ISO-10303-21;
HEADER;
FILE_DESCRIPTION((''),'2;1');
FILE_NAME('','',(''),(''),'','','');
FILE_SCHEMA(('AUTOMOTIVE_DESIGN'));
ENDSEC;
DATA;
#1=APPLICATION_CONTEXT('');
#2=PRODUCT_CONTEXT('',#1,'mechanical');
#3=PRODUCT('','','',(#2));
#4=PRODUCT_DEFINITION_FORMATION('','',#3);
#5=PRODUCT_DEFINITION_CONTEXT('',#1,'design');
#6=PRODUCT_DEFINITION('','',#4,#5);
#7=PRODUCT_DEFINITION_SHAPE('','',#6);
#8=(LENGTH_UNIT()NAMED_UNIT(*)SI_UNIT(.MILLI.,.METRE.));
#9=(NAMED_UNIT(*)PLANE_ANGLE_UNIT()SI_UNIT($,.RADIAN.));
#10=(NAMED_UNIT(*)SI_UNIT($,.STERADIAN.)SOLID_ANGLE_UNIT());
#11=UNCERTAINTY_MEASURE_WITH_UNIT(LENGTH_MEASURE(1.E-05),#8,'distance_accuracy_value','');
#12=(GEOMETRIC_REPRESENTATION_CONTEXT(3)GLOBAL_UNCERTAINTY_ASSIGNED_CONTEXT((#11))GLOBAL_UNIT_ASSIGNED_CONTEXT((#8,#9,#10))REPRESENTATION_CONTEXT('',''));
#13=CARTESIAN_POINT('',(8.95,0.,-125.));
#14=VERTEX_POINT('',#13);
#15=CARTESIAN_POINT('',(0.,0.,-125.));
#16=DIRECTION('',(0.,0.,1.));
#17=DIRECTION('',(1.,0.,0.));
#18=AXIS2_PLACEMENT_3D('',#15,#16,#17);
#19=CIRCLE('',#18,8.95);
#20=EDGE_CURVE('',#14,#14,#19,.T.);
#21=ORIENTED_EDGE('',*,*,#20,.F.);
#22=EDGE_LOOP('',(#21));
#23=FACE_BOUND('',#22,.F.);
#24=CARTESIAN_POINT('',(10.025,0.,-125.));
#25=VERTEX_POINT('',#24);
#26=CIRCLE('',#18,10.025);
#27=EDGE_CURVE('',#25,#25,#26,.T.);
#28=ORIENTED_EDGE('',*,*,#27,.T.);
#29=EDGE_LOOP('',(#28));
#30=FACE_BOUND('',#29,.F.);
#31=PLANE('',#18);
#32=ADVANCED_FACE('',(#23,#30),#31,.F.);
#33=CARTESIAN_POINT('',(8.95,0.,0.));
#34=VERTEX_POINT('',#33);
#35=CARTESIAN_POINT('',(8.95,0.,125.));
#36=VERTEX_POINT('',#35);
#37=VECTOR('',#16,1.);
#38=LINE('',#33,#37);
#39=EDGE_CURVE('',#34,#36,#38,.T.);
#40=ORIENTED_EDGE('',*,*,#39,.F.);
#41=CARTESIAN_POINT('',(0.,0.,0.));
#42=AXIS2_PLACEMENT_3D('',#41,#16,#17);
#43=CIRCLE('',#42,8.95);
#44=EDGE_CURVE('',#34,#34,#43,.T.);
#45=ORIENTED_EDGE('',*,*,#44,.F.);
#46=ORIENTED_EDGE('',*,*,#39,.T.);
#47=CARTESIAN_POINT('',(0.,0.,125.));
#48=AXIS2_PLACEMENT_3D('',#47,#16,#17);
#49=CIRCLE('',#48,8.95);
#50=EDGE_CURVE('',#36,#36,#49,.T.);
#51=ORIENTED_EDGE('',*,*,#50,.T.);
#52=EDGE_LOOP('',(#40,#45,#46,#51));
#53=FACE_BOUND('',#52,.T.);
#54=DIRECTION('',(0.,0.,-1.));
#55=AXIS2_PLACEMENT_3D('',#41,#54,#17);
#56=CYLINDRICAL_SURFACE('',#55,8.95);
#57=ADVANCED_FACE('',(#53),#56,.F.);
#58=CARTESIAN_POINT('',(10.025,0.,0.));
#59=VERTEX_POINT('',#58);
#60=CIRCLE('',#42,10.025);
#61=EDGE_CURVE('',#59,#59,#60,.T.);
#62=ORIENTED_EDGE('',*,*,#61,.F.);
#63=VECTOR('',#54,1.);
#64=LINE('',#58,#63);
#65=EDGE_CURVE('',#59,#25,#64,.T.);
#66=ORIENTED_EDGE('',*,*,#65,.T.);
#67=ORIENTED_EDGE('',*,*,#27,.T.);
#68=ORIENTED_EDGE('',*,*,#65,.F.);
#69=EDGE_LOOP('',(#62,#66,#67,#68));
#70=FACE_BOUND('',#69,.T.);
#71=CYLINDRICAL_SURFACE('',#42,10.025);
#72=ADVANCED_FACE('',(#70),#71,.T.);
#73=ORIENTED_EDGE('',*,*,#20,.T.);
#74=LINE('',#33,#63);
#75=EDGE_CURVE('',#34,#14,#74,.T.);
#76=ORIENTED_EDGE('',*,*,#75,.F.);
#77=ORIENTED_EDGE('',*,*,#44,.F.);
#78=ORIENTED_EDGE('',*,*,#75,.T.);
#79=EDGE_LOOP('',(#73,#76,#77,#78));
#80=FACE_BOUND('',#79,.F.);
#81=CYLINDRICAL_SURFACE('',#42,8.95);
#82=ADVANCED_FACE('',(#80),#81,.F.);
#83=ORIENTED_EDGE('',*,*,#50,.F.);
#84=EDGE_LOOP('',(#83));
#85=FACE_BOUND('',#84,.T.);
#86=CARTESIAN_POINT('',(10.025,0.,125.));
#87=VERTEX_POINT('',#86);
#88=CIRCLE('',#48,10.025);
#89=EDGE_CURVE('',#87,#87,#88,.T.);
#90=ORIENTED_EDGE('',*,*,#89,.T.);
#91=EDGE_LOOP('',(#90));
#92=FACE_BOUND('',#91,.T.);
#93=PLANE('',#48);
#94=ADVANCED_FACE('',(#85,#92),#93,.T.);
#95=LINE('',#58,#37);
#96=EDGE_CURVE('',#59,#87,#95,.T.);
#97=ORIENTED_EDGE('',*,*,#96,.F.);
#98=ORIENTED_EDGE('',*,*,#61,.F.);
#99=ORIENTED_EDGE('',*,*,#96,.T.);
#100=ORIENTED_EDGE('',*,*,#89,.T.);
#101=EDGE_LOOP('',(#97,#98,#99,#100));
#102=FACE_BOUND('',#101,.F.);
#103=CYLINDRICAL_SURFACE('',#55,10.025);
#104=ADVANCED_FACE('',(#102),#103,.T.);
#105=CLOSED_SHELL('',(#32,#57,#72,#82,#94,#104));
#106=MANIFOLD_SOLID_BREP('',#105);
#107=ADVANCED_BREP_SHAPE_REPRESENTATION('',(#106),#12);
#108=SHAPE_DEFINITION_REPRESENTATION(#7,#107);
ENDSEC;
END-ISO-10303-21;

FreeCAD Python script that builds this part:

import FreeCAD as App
import Part
import Sketcher
Q = App.Units.Quantity

doc = App.newDocument("Part")
body = doc.addObject("PartDesign::Body", "Body")

sketch1 = body.newObject("Sketcher::SketchObject", "Sketch")
sketch1.AttachmentSupport = (doc.getObject("XY_Plane"), [""])
sketch1.MapMode = "FlatFace"
sketch1.addGeometry(Part.Circle(App.Vector(0, 0, 0), App.Vector(0, 0, 1), 10), False)
sketch1.addGeometry(Part.Circle(App.Vector(0, 0, 0), App.Vector(0, 0, 1), 9), False)
sketch1.addConstraint(Sketcher.Constraint("Coincident", 0, 3, -1, 1))
sketch1.addConstraint(Sketcher.Constraint("Coincident", 1, 3, -1, 1))
sketch1.addConstraint(Sketcher.Constraint("Diameter", 1, Q("17.9 mm")))
sketch1.addConstraint(Sketcher.Constraint("Diameter", 0, Q("20.05 mm")))
pad1 = body.newObject("PartDesign::Pad", "Pad")
pad1.Profile = sketch1
pad1.Length = 250
pad1.Midplane = True

doc.recompute()
